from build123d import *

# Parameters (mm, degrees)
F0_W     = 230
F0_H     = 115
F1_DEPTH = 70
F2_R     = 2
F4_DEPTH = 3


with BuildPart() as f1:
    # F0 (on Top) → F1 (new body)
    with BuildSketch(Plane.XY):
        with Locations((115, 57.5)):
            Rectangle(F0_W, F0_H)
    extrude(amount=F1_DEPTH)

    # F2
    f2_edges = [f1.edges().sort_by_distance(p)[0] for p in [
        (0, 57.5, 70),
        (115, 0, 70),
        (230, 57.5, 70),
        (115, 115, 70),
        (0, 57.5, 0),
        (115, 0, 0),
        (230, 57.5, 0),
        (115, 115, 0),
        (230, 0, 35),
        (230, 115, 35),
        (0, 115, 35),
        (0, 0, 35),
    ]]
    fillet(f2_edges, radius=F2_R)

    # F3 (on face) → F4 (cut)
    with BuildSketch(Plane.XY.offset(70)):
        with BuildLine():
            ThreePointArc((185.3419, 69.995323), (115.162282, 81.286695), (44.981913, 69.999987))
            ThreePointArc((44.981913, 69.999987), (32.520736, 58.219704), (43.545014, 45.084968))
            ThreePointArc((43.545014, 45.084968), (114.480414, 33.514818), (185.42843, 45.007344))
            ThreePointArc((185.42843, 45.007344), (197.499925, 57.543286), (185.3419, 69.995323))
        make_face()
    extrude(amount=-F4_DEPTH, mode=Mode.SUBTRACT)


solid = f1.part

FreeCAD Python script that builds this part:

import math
import FreeCAD as App
import Part
import Sketcher

V = App.Vector
Q = App.Units.Quantity

doc = App.newDocument("Part")
body = doc.addObject("PartDesign::Body", "Body")

sketch1 = doc.addObject("Sketcher::SketchObject", "Sketch")
body.addObject(sketch1)
sketch1.AttachmentSupport = (doc.XY_Plane, [""])
sketch1.MapMode = "FlatFace"
sketch1.addGeometry(Part.LineSegment(V(0, 115, 0), V(0, 0, 0)), False)
sketch1.addGeometry(Part.LineSegment(V(0, 0, 0), V(230, 0, 0)), False)
sketch1.addGeometry(Part.LineSegment(V(230, 0, 0), V(230, 115, 0)), False)
sketch1.addGeometry(Part.LineSegment(V(230, 115, 0), V(0, 115, 0)), False)
sketch1.addConstraint(Sketcher.Constraint("Coincident", 0, 2, 1, 1))
sketch1.addConstraint(Sketcher.Constraint("Coincident", 1, 2, 2, 1))
sketch1.addConstraint(Sketcher.Constraint("Coincident", 2, 2, 3, 1))
sketch1.addConstraint(Sketcher.Constraint("Coincident", 3, 2, 0, 1))
sketch1.addConstraint(Sketcher.Constraint("Vertical", 0))
sketch1.addConstraint(Sketcher.Constraint("Horizontal", 1))
sketch1.addConstraint(Sketcher.Constraint("Vertical", 2))
sketch1.addConstraint(Sketcher.Constraint("Horizontal", 3))
sketch1.addConstraint(Sketcher.Constraint("Coincident", 0, 2, -1, 1))
sketch1.addConstraint(Sketcher.Constraint("DistanceX", 1, 1, 1, 2, Q("230 mm")))
sketch1.addConstraint(Sketcher.Constraint("DistanceY", 0, 2, 0, 1, Q("115 mm")))
pad1 = doc.addObject("PartDesign::Pad", "Pad")
body.addObject(pad1)
pad1.Profile = sketch1
pad1.Length = 70
doc.recompute()

fillet = doc.addObject("PartDesign::Fillet", "Fillet")
body.addObject(fillet)
fillet.Base = (pad1, ["Edge1"])
fillet.UseAllEdges = True
fillet.Radius = 2

sketch2 = doc.addObject("Sketcher::SketchObject", "Sketch001")
body.addObject(sketch2)
sketch2.AttachmentSupport = (doc.XY_Plane, [""])
sketch2.MapMode = "FlatFace"
sketch2.AttachmentOffset = App.Placement(V(0, 0, 70), App.Rotation())
sketch2.addGeometry(Part.ArcOfCircle(Part.Circle(V(115, -143, 0), V(0, 0, 1), 224), math.radians(72), math.radians(108)), False)
sketch2.addGeometry(Part.ArcOfCircle(Part.Circle(V(45, 57, 0), V(0, 0, 1), 13), math.radians(90), math.radians(263)), False)
sketch2.addGeometry(Part.ArcOfCircle(Part.Circle(V(115, 258, 0), V(0, 0, 1), 224), math.radians(-108), math.radians(-72)), False)
sketch2.addGeometry(Part.ArcOfCircle(Part.Circle(V(185, 57, 0), V(0, 0, 1), 12), math.radians(-88), math.radians(88)), False)
sketch2.addConstraint(Sketcher.Constraint("Coincident", 0, 2, 1, 1))
sketch2.addConstraint(Sketcher.Constraint("Coincident", 1, 2, 2, 1))
sketch2.addConstraint(Sketcher.Constraint("Coincident", 2, 2, 3, 1))
sketch2.addConstraint(Sketcher.Constraint("Coincident", 3, 2, 0, 1))
sketch2.addConstraint(Sketcher.Constraint("Equal", 1, 3))
sketch2.addConstraint(Sketcher.Constraint("Horizontal", 1, 3, 3, 3))
sketch2.addConstraint(Sketcher.Constraint("Radius", 1, Q("12.5 mm")))
sketch2.addConstraint(Sketcher.Constraint("DistanceX", -1, 1, 1, 3, Q("45 mm")))
sketch2.addConstraint(Sketcher.Constraint("DistanceX", -1, 1, 3, 3, Q("185 mm")))
sketch2.addConstraint(Sketcher.Constraint("DistanceY", 0, 3, 1, 3, Q("200 mm")))
sketch2.addConstraint(Sketcher.Constraint("DistanceY", 1, 3, 2, 3, Q("200 mm")))
sketch2.addConstraint(Sketcher.Constraint("DistanceY", 0, 3, -1, 1, Q("142.5 mm")))
sketch2.addConstraint(Sketcher.Constraint("Radius", 0, Q("223.786696 mm")))
sketch2.addConstraint(Sketcher.Constraint("Radius", 2, Q("223.985216 mm")))
sketch2.addConstraint(Sketcher.Constraint("DistanceX", -1, 1, 3, 2, Q("185.3419 mm")))
sketch2.addConstraint(Sketcher.Constraint("DistanceX", 1, 2, 0, 2, Q("1.436899 mm")))
pocket1 = doc.addObject("PartDesign::Pocket", "Pocket")
body.addObject(pocket1)
pocket1.Profile = sketch2
pocket1.Length = 3

doc.recompute()
